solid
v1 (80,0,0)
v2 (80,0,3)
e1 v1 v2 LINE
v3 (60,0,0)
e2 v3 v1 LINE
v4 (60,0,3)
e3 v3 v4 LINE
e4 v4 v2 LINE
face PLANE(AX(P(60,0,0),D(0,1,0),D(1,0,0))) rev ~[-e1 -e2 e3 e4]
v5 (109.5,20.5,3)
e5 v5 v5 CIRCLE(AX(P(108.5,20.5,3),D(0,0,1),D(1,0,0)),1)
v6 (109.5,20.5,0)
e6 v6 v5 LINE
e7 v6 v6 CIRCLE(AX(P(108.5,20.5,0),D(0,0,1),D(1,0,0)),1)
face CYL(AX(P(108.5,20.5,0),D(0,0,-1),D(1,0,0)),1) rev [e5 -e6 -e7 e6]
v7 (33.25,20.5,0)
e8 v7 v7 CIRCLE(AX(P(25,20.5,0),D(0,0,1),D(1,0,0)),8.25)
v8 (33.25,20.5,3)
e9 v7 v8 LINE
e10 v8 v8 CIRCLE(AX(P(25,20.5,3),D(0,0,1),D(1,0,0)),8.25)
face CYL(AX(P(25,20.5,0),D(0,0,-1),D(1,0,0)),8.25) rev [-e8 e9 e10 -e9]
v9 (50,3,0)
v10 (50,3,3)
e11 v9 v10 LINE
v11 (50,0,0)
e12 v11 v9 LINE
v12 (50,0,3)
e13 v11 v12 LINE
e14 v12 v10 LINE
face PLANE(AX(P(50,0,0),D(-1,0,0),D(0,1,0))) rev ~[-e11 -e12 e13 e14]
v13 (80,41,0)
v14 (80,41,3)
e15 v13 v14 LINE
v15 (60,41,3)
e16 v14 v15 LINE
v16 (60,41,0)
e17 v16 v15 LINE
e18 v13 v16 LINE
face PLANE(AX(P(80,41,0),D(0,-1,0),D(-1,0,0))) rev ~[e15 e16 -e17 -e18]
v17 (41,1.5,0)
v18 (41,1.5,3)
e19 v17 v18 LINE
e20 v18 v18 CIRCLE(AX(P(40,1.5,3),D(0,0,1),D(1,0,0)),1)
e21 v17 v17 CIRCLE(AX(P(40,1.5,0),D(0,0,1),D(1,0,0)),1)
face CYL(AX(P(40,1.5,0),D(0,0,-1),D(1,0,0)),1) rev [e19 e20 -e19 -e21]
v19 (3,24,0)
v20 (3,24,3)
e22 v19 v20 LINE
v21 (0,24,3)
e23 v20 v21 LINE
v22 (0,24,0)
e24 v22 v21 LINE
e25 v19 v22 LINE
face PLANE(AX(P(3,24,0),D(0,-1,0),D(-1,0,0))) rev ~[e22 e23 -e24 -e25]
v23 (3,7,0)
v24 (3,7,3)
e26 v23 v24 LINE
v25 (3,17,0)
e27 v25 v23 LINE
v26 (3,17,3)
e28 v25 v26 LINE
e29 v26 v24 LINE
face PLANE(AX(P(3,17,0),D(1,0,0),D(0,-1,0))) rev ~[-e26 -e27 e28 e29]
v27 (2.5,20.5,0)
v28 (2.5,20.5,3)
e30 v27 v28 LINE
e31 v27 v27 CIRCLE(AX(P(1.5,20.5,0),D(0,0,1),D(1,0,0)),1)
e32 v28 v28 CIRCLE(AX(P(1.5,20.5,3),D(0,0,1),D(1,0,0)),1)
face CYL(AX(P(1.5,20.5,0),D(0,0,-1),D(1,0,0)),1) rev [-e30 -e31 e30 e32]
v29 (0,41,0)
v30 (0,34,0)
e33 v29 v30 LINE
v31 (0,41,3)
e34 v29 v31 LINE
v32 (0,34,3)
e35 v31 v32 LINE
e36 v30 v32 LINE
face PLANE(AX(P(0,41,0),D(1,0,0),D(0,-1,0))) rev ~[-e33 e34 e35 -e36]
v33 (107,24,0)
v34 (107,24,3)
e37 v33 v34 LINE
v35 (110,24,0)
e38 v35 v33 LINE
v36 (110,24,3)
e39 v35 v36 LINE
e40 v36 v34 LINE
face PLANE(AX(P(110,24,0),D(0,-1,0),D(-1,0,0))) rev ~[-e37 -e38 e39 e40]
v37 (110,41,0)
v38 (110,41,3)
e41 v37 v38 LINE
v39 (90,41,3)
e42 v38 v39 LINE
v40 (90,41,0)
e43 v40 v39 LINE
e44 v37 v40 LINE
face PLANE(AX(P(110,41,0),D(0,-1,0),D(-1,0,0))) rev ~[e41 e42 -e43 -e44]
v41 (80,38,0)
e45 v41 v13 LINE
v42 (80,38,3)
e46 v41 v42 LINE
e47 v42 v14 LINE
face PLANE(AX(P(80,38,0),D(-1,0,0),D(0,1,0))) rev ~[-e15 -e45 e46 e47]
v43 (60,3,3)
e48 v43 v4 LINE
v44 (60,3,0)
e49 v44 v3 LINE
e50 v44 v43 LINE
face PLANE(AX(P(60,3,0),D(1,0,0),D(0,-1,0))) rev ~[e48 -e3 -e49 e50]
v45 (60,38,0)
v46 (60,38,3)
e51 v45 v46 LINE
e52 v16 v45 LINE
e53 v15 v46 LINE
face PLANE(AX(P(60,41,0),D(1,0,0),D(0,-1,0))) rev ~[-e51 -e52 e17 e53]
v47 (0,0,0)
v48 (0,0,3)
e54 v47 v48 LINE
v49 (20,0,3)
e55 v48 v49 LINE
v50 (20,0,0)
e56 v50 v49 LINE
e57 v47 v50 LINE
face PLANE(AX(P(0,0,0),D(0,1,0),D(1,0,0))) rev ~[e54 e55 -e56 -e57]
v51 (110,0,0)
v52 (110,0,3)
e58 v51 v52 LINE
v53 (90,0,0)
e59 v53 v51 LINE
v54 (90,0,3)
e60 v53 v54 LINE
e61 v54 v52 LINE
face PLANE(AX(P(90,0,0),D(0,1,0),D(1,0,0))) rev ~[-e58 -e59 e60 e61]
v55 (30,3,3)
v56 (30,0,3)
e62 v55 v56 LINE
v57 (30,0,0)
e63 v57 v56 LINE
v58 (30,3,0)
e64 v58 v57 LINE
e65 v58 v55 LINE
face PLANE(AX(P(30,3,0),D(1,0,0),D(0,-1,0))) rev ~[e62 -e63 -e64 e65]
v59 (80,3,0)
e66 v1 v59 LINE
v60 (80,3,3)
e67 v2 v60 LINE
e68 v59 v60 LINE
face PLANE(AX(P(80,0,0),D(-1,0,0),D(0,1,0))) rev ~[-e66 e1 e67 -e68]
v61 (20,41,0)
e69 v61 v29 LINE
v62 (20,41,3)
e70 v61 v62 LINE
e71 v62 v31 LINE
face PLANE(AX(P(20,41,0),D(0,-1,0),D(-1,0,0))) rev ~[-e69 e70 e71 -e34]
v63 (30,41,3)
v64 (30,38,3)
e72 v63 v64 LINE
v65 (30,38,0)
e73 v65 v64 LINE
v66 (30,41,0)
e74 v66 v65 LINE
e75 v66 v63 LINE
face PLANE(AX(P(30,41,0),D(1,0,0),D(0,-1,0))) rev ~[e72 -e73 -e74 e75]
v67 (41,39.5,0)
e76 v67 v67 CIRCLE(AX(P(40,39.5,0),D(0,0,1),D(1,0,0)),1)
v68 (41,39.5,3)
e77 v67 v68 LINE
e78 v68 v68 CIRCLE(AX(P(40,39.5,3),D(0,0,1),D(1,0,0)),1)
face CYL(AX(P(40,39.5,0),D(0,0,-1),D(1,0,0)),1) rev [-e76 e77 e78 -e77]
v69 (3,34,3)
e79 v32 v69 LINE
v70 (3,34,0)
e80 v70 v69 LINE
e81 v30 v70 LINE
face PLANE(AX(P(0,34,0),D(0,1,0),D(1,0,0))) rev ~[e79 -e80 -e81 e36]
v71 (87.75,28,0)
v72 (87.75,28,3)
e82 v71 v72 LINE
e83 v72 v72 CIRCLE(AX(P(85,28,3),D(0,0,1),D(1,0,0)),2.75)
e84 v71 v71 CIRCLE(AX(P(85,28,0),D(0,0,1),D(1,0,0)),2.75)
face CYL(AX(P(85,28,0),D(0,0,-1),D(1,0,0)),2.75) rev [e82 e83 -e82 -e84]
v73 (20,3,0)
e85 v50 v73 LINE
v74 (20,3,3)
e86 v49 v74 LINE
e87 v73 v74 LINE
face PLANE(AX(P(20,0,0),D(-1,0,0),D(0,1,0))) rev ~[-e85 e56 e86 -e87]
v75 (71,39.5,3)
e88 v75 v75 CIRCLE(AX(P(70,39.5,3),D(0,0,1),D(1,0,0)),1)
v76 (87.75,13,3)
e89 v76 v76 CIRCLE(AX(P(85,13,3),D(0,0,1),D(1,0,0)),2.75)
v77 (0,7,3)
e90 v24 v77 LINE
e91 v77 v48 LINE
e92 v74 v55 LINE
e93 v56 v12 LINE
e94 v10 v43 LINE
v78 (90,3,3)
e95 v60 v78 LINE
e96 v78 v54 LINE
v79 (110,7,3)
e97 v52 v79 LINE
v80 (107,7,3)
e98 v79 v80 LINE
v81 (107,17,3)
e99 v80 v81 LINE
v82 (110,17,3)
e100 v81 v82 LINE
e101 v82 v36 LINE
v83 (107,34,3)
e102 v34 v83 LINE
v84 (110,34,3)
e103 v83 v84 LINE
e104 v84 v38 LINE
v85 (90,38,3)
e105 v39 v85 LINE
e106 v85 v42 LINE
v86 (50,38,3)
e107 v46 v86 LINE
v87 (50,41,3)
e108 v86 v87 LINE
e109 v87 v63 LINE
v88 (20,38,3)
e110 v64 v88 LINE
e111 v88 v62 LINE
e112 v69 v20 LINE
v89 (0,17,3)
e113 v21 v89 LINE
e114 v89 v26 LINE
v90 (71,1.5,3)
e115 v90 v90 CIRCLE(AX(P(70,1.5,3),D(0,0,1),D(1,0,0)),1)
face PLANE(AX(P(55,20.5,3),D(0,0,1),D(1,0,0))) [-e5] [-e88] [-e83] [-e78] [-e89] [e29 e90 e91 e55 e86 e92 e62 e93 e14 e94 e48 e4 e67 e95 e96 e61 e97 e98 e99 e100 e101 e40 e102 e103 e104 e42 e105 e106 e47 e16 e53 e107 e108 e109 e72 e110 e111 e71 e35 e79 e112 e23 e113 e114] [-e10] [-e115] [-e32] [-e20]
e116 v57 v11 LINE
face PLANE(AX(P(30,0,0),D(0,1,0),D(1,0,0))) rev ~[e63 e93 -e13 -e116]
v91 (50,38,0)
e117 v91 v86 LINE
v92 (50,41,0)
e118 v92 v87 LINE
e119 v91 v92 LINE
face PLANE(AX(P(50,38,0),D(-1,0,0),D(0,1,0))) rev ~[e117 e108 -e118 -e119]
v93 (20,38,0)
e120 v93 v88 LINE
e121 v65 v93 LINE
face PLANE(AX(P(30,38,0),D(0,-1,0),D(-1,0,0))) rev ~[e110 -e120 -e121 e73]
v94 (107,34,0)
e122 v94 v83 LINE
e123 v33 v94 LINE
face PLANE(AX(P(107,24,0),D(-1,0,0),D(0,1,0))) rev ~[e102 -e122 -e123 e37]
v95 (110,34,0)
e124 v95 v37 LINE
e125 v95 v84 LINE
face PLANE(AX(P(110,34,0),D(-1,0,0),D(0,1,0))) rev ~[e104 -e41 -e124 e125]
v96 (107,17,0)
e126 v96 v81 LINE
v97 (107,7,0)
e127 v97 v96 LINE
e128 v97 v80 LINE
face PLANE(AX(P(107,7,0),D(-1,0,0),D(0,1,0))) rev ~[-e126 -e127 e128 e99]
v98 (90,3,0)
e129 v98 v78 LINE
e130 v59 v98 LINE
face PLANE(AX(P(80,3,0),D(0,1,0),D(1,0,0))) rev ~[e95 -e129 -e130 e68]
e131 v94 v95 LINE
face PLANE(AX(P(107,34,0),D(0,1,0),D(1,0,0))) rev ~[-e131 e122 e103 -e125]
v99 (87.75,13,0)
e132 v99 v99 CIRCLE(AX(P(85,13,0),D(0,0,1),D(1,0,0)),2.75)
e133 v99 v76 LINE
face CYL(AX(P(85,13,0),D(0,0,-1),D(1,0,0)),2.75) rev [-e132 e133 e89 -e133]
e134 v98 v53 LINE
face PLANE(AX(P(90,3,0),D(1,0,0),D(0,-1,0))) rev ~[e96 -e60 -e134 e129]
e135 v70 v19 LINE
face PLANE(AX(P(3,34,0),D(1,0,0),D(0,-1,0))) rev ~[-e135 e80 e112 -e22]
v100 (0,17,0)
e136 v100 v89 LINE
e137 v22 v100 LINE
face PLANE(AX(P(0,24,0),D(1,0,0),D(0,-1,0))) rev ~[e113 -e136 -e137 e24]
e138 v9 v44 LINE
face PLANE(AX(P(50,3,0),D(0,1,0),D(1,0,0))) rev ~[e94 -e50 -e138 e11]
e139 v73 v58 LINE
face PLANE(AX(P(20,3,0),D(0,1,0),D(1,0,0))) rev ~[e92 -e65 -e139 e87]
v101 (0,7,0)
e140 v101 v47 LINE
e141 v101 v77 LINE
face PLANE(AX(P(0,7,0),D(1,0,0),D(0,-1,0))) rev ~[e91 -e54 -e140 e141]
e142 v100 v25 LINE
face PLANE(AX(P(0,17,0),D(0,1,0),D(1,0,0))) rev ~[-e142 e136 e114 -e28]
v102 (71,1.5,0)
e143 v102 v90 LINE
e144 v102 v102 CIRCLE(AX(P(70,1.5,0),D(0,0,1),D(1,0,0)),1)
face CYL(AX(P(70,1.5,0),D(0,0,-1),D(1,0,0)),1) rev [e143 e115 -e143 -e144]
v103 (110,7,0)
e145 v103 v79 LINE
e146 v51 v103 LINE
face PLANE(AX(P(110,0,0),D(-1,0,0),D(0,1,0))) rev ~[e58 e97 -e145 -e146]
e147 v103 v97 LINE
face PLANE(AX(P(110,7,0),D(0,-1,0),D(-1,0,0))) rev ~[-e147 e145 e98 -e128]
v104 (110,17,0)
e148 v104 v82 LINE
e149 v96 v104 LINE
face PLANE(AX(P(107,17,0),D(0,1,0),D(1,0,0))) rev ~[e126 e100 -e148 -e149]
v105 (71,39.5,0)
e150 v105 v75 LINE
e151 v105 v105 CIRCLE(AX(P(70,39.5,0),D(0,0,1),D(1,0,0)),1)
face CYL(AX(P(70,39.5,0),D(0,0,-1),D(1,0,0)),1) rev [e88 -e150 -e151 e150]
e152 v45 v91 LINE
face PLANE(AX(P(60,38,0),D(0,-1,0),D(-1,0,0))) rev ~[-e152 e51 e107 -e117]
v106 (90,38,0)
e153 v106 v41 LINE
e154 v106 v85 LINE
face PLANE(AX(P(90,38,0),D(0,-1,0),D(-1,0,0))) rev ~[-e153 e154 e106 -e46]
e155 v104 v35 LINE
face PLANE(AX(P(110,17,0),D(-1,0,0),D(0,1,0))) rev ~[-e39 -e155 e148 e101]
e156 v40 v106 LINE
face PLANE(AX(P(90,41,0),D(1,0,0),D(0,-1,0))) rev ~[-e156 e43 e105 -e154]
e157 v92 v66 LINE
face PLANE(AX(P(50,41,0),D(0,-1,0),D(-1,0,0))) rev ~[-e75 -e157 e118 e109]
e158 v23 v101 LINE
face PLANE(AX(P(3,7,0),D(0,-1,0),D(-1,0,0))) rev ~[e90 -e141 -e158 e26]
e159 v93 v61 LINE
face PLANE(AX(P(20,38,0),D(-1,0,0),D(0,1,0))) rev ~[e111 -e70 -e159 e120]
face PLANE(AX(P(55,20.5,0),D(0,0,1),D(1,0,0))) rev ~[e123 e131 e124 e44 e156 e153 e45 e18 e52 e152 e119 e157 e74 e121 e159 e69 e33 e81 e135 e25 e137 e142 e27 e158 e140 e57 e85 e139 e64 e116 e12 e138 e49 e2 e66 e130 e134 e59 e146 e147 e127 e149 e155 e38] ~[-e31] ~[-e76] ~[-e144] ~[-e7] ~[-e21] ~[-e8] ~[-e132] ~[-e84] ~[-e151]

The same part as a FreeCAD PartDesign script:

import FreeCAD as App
import Part
import Sketcher
from FreeCAD import Vector
Q = App.Units.Quantity


def add_polygon(sketch, points):
    """Adds a closed chain of lines whose ends are joined by coincident constraints."""
    first, n = sketch.GeometryCount, len(points)
    for a, b in zip(points, points[1:] + points[:1]):
        sketch.addGeometry(Part.LineSegment(App.Vector(*a, 0), App.Vector(*b, 0)), False)
    for i in range(n):
        sketch.addConstraint(Sketcher.Constraint("Coincident", first + i, 2, first + (i + 1) % n, 1))

doc = App.newDocument("Part")
params = doc.addObject("Spreadsheet::Sheet", "Params")
for row, (alias, value) in enumerate([
    ("sketch1_diameter", "2 mm"),
    ("sketch1_diameter2", "5.5 mm"),
    ("sketch1_diameter3", "16.5 mm"),
    ("sketch1_width", "20 mm"),
    ("sketch1_width2", "10 mm"),
    ("pad1_length", "3 mm"),
], start=1):
    params.set(f"A{row}", alias)
    params.set(f"B{row}", "=" + value)
    params.setAlias(f"B{row}", alias)

body = doc.addObject("PartDesign::Body", "Body")

# Sketch on XY plane
sketch1 = doc.addObject("Sketcher::SketchObject", "Sketch")
body.addObject(sketch1)
sketch1.AttachmentSupport = (doc.XY_Plane, [""])
sketch1.MapMode = "FlatFace"
add_polygon(sketch1, [(0, 7), (0, 0), (20, 0), (20, 3), (30, 3), (30, 0), (50, 0), (50, 3), (60, 3), (60, 0), (80, 0), (80, 3), (90, 3), (90, 0), (110, 0), (110, 7), (107, 7), (107, 17), (110, 17), (110, 24), (107, 24), (107, 34), (110, 34), (110, 41), (90, 41), (90, 38), (80, 38), (80, 41), (60, 41), (60, 38), (50, 38), (50, 41), (30, 41), (30, 38), (20, 38), (20, 41), (0, 41), (0, 34), (3, 34), (3, 24), (0, 24), (0, 17), (3, 17), (3, 7)])  # lines 0-43
sketch1.addGeometry(Part.Circle(Vector(40, 1.5, 0), Vector(0, 0, 1), 1), False)  # 44
sketch1.addGeometry(Part.Circle(Vector(70, 1.5, 0), Vector(0, 0, 1), 1), False)  # 45
sketch1.addGeometry(Part.Circle(Vector(85, 13, 0), Vector(0, 0, 1), 2.75), False)  # 46
sketch1.addGeometry(Part.Circle(Vector(1.5, 20.5, 0), Vector(0, 0, 1), 1), False)  # 47
sketch1.addGeometry(Part.Circle(Vector(25, 20.5, 0), Vector(0, 0, 1), 8.25), False)  # 48
sketch1.addGeometry(Part.Circle(Vector(40, 39.5, 0), Vector(0, 0, 1), 1), False)  # 49
sketch1.addGeometry(Part.Circle(Vector(108.5, 20.5, 0), Vector(0, 0, 1), 1), False)  # 50
sketch1.addGeometry(Part.Circle(Vector(85, 28, 0), Vector(0, 0, 1), 2.75), False)  # 51
sketch1.addGeometry(Part.Circle(Vector(70, 39.5, 0), Vector(0, 0, 1), 1), False)  # 52
sketch1.addConstraint([
    Sketcher.Constraint("Vertical", 0),
    Sketcher.Constraint("Horizontal", 1),
    Sketcher.Constraint("Vertical", 2),
    Sketcher.Constraint("Horizontal", 3),
    Sketcher.Constraint("Vertical", 4),
    Sketcher.Constraint("Horizontal", 5),
    Sketcher.Constraint("Vertical", 6),
    Sketcher.Constraint("Horizontal", 7),
    Sketcher.Constraint("Vertical", 8),
    Sketcher.Constraint("Horizontal", 9),
    Sketcher.Constraint("Vertical", 10),
    Sketcher.Constraint("Horizontal", 11),
    Sketcher.Constraint("Vertical", 12),
    Sketcher.Constraint("Horizontal", 13),
    Sketcher.Constraint("Vertical", 14),
    Sketcher.Constraint("Horizontal", 15),
    Sketcher.Constraint("Vertical", 16),
    Sketcher.Constraint("Horizontal", 17),
    Sketcher.Constraint("Vertical", 18),
    Sketcher.Constraint("Horizontal", 19),
    Sketcher.Constraint("Vertical", 20),
    Sketcher.Constraint("Horizontal", 21),
    Sketcher.Constraint("Vertical", 22),
    Sketcher.Constraint("Horizontal", 23),
    Sketcher.Constraint("Vertical", 24),
    Sketcher.Constraint("Horizontal", 25),
    Sketcher.Constraint("Vertical", 26),
    Sketcher.Constraint("Horizontal", 27),
    Sketcher.Constraint("Vertical", 28),
    Sketcher.Constraint("Horizontal", 29),
    Sketcher.Constraint("Vertical", 30),
    Sketcher.Constraint("Horizontal", 31),
    Sketcher.Constraint("Vertical", 32),
    Sketcher.Constraint("Horizontal", 33),
    Sketcher.Constraint("Vertical", 34),
    Sketcher.Constraint("Horizontal", 35),
    Sketcher.Constraint("Vertical", 36),
    Sketcher.Constraint("Horizontal", 37),
    Sketcher.Constraint("Vertical", 38),
    Sketcher.Constraint("Horizontal", 39),
    Sketcher.Constraint("Vertical", 40),
    Sketcher.Constraint("Horizontal", 41),
    Sketcher.Constraint("Vertical", 42),
    Sketcher.Constraint("Horizontal", 43),
    Sketcher.Constraint("Coincident", 0, 2, -1, 1),
    Sketcher.Constraint("Equal", 44, 45),
    Sketcher.Constraint("Equal", 45, 47),
    Sketcher.Constraint("Equal", 47, 49),
    Sketcher.Constraint("Equal", 49, 50),
    Sketcher.Constraint("Equal", 46, 51),
    Sketcher.Constraint("Equal", 50, 52),
    Sketcher.Constraint("PointOnObject", 4, 2, -1),
    Sketcher.Constraint("PointOnObject", 8, 2, -1),
    Sketcher.Constraint("PointOnObject", 12, 2, -1),
    Sketcher.Constraint("PointOnObject", 35, 2, -2),
    Sketcher.Constraint("PointOnObject", 39, 2, -2),
    Sketcher.Constraint("Horizontal", 44, 3, 45, 3),
    Sketcher.Constraint("Horizontal", 47, 3, 48, 3),
    Sketcher.Constraint("Horizontal", 48, 3, 50, 3),
    Sketcher.Constraint("Horizontal", 49, 3, 52, 3),
    Sketcher.Constraint("Horizontal", 3, 2, 6, 2),
    Sketcher.Constraint("Horizontal", 7, 2, 10, 2),
    Sketcher.Constraint("Horizontal", 23, 2, 26, 2),
    Sketcher.Constraint("Horizontal", 25, 2, 28, 2),
    Sketcher.Constraint("Horizontal", 27, 2, 30, 2),
    Sketcher.Constraint("Horizontal", 29, 2, 32, 2),
    Sketcher.Constraint("Horizontal", 31, 2, 34, 2),
    Sketcher.Constraint("Horizontal", 21, 2, 36, 2),
    Sketcher.Constraint("Horizontal", 19, 2, 38, 2),
    Sketcher.Constraint("Horizontal", 17, 2, 40, 2),
    Sketcher.Constraint("Horizontal", 15, 2, 42, 2),
    Sketcher.Constraint("Vertical", 44, 3, 49, 3),
    Sketcher.Constraint("Vertical", 46, 3, 51, 3),
    Sketcher.Constraint("Vertical", 45, 3, 52, 3),
    Sketcher.Constraint("Vertical", 14, 2, 17, 2),
    Sketcher.Constraint("Vertical", 16, 2, 19, 2),
    Sketcher.Constraint("Vertical", 18, 2, 21, 2),
    Sketcher.Constraint("Vertical", 12, 2, 23, 2),
    Sketcher.Constraint("Vertical", 10, 2, 25, 2),
    Sketcher.Constraint("Vertical", 8, 2, 27, 2),
    Sketcher.Constraint("Vertical", 6, 2, 29, 2),
    Sketcher.Constraint("Vertical", 4, 2, 31, 2),
    Sketcher.Constraint("Vertical", 2, 2, 33, 2),
    Sketcher.Constraint("Vertical", 38, 2, 41, 2),
    Sketcher.Constraint("Equal", 1, 5),
    Sketcher.Constraint("Equal", 3, 7),
    Sketcher.Constraint("Equal", 5, 9),
    Sketcher.Constraint("Equal", 7, 11),
    Sketcher.Constraint("Equal", 9, 13),
    Sketcher.Constraint("Equal", 21, 37),
    Sketcher.Constraint("Equal", 43, 2),
    Sketcher.Constraint("Equal", 33, 16),
    Sketcher.Constraint("Equal", 14, 18),
    Sketcher.Constraint("Equal", 16, 20),
    Sketcher.Constraint("Equal", 18, 22),
    Sketcher.Constraint("Equal", 12, 24),
    Sketcher.Constraint("Diameter", 44, Q("2 mm")),
    Sketcher.Constraint("Diameter", 46, Q("5.5 mm")),
    Sketcher.Constraint("Diameter", 48, Q("16.5 mm")),
    Sketcher.Constraint("DistanceX", 1, 1, 1, 2, Q("20 mm")),
    Sketcher.Constraint("DistanceX", 3, 1, 3, 2, Q("10 mm")),
    Sketcher.Constraint("DistanceX", 15, 2, 15, 1, Q("3 mm")),
    Sketcher.Constraint("DistanceY", 0, 2, 0, 1, Q("7 mm")),
    Sketcher.Constraint("DistanceX", -1, 1, 44, 3, Q("40 mm")),
    Sketcher.Constraint("DistanceX", -1, 1, 45, 3, Q("70 mm")),
    Sketcher.Constraint("DistanceX", -1, 1, 46, 3, Q("85 mm")),
    Sketcher.Constraint("DistanceY", -1, 1, 46, 3, Q("13 mm")),
    Sketcher.Constraint("DistanceX", -1, 1, 48, 3, Q("25 mm")),
    Sketcher.Constraint("DistanceY", -1, 1, 51, 3, Q("28 mm")),
    Sketcher.Constraint("DistanceY", 44, 3, 47, 3, Q("19 mm")),
    Sketcher.Constraint("DistanceY", 48, 3, 49, 3, Q("19 mm")),
    Sketcher.Constraint("DistanceY", -1, 1, 44, 3, Q("1.5 mm")),
    Sketcher.Constraint("DistanceX", -1, 1, 47, 3, Q("1.5 mm")),
    Sketcher.Constraint("DistanceX", -1, 1, 50, 3, Q("108.5 mm")),
])
sketch1.setExpression("Constraints[140]", "Params.sketch1_diameter")
sketch1.setExpression("Constraints[141]", "Params.sketch1_diameter2")
sketch1.setExpression("Constraints[142]", "Params.sketch1_diameter3")
sketch1.setExpression("Constraints[143]", "Params.sketch1_width")
sketch1.setExpression("Constraints[144]", "Params.sketch1_width2")
pad1 = doc.addObject("PartDesign::Pad", "Pad")
body.addObject(pad1)
pad1.Profile = sketch1
pad1.setExpression("Length", "Params.pad1_length")

doc.recompute()
